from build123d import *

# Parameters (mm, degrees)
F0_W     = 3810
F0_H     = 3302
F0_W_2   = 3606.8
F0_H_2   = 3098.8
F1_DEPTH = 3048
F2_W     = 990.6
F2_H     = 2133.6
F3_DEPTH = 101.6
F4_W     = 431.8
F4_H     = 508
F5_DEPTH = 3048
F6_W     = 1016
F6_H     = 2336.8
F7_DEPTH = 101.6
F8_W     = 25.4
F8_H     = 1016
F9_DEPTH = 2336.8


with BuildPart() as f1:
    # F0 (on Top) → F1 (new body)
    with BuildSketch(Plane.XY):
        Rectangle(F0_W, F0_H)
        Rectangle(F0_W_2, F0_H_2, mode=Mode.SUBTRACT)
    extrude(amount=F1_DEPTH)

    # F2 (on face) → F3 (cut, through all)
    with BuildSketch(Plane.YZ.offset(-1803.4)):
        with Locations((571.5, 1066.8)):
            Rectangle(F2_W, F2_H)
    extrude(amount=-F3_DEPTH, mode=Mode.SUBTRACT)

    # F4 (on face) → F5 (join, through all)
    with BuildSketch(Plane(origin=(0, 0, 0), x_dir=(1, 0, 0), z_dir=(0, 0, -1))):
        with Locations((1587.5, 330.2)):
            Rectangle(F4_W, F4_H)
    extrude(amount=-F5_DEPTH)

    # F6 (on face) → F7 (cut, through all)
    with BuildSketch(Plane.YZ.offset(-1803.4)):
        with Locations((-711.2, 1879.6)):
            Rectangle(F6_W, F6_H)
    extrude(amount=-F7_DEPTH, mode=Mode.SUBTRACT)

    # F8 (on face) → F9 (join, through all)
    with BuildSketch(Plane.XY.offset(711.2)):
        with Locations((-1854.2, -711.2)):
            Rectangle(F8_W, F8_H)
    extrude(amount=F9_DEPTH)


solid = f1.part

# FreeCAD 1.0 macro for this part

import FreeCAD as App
import Part
import Sketcher
Q = App.Units.Quantity

doc = App.newDocument("Part")
body = doc.addObject("PartDesign::Body", "Body")

# Sketch on XY plane
sketch1 = body.newObject("Sketcher::SketchObject", "Sketch")
sketch1.AttachmentSupport = (doc.getObject("XY_Plane"), [""])
sketch1.MapMode = "FlatFace"
sketch1.addGeometry([
    Part.LineSegment(App.Vector(-1905, 1651, 0), App.Vector(-1905, -1651, 0)),  # 0
    Part.LineSegment(App.Vector(-1905, -1651, 0), App.Vector(1905, -1651, 0)),  # 1
    Part.LineSegment(App.Vector(1905, -1651, 0), App.Vector(1905, 1651, 0)),  # 2
    Part.LineSegment(App.Vector(1905, 1651, 0), App.Vector(-1905, 1651, 0)),  # 3
    Part.LineSegment(App.Vector(1803, -1549, 0), App.Vector(-1803, -1549, 0)),  # 4
    Part.LineSegment(App.Vector(-1803, -1549, 0), App.Vector(-1803, 1549, 0)),  # 5
    Part.LineSegment(App.Vector(-1803, 1549, 0), App.Vector(1803, 1549, 0)),  # 6
    Part.LineSegment(App.Vector(1803, 1549, 0), App.Vector(1803, -1549, 0)),  # 7
], False)
sketch1.addConstraint([
    Sketcher.Constraint("Coincident", 0, 2, 1, 1),
    Sketcher.Constraint("Coincident", 1, 2, 2, 1),
    Sketcher.Constraint("Coincident", 2, 2, 3, 1),
    Sketcher.Constraint("Coincident", 3, 2, 0, 1),
    Sketcher.Constraint("Coincident", 4, 2, 5, 1),
    Sketcher.Constraint("Coincident", 5, 2, 6, 1),
    Sketcher.Constraint("Coincident", 6, 2, 7, 1),
    Sketcher.Constraint("Coincident", 7, 2, 4, 1),
    Sketcher.Constraint("Vertical", 0),
    Sketcher.Constraint("Horizontal", 1),
    Sketcher.Constraint("Vertical", 2),
    Sketcher.Constraint("Horizontal", 3),
    Sketcher.Constraint("Horizontal", 4),
    Sketcher.Constraint("Vertical", 5),
    Sketcher.Constraint("Horizontal", 6),
    Sketcher.Constraint("Vertical", 7),
    Sketcher.Constraint("Symmetric", 0, 2, 2, 2, -1, 1),
    Sketcher.Constraint("Symmetric", 4, 2, 6, 2, -1, 1),
    Sketcher.Constraint("DistanceX", 1, 1, 1, 2, Q("150 in")),
    Sketcher.Constraint("DistanceX", 4, 2, 4, 1, Q("142 in")),
    Sketcher.Constraint("DistanceY", 0, 2, 0, 1, Q("130 in")),
    Sketcher.Constraint("DistanceY", 5, 1, 5, 2, Q("122 in")),
])
pad1 = body.newObject("PartDesign::Pad", "Pad")
pad1.Profile = sketch1
pad1.Length = Q("120 in")

# Sketch on YZ plane
sketch2 = body.newObject("Sketcher::SketchObject", "Sketch001")
sketch2.AttachmentSupport = (doc.getObject("YZ_Plane"), [""])
sketch2.MapMode = "FlatFace"
sketch2.AttachmentOffset = App.Placement(App.Vector(0, 0, -71 * 25.4), App.Rotation())
sketch2.addGeometry([
    Part.LineSegment(App.Vector(76, 2134, 0), App.Vector(76, 0, 0)),
    Part.LineSegment(App.Vector(76, 0, 0), App.Vector(1067, 0, 0)),
    Part.LineSegment(App.Vector(1067, 0, 0), App.Vector(1067, 2134, 0)),
    Part.LineSegment(App.Vector(1067, 2134, 0), App.Vector(76, 2134, 0)),
], False)
sketch2.addConstraint([
    Sketcher.Constraint("Coincident", 0, 2, 1, 1),
    Sketcher.Constraint("Coincident", 1, 2, 2, 1),
    Sketcher.Constraint("Coincident", 2, 2, 3, 1),
    Sketcher.Constraint("Coincident", 3, 2, 0, 1),
    Sketcher.Constraint("Vertical", 0),
    Sketcher.Constraint("Horizontal", 1),
    Sketcher.Constraint("Vertical", 2),
    Sketcher.Constraint("Horizontal", 3),
    Sketcher.Constraint("PointOnObject", 0, 2, -1),
    Sketcher.Constraint("DistanceX", 1, 1, 1, 2, Q("39 in")),
    Sketcher.Constraint("DistanceY", 0, 2, 0, 1, Q("84 in")),
    Sketcher.Constraint("DistanceX", -1, 1, 0, 2, Q("3 in")),
])
pocket1 = body.newObject("PartDesign::Pocket", "Pocket")
pocket1.Profile = sketch2
pocket1.Type = "ThroughAll"

# Sketch on XY plane
sketch3 = body.newObject("Sketcher::SketchObject", "Sketch002")
sketch3.AttachmentSupport = (doc.getObject("XY_Plane"), [""])
sketch3.MapMode = "FlatFace"
sketch3.addGeometry([
    Part.LineSegment(App.Vector(1372, -584, 0), App.Vector(1372, -76, 0)),
    Part.LineSegment(App.Vector(1372, -76, 0), App.Vector(1803, -76, 0)),
    Part.LineSegment(App.Vector(1803, -76, 0), App.Vector(1803, -584, 0)),
    Part.LineSegment(App.Vector(1803, -584, 0), App.Vector(1372, -584, 0)),
], False)
sketch3.addConstraint([
    Sketcher.Constraint("Coincident", 0, 2, 1, 1),
    Sketcher.Constraint("Coincident", 1, 2, 2, 1),
    Sketcher.Constraint("Coincident", 2, 2, 3, 1),
    Sketcher.Constraint("Coincident", 3, 2, 0, 1),
    Sketcher.Constraint("Vertical", 0),
    Sketcher.Constraint("Horizontal", 1),
    Sketcher.Constraint("Vertical", 2),
    Sketcher.Constraint("Horizontal", 3),
    Sketcher.Constraint("DistanceX", 1, 1, 1, 2, Q("17 in")),
    Sketcher.Constraint("DistanceY", 0, 1, 0, 2, Q("20 in")),
    Sketcher.Constraint("DistanceX", -1, 1, 0, 2, Q("54 in")),
    Sketcher.Constraint("DistanceY", 0, 2, -1, 1, Q("3 in")),
])
pad2 = body.newObject("PartDesign::Pad", "Pad001")
pad2.Profile = sketch3
pad2.Length = Q("120 in")

# Sketch on YZ plane
sketch4 = body.newObject("Sketcher::SketchObject", "Sketch003")
sketch4.AttachmentSupport = (doc.getObject("YZ_Plane"), [""])
sketch4.MapMode = "FlatFace"
sketch4.AttachmentOffset = App.Placement(App.Vector(0, 0, -71 * 25.4), App.Rotation())
sketch4.addGeometry([
    Part.LineSegment(App.Vector(-1219, 3048, 0), App.Vector(-1219, 711, 0)),
    Part.LineSegment(App.Vector(-1219, 711, 0), App.Vector(-203, 711, 0)),
    Part.LineSegment(App.Vector(-203, 711, 0), App.Vector(-203, 3048, 0)),
    Part.LineSegment(App.Vector(-203, 3048, 0), App.Vector(-1219, 3048, 0)),
], False)
sketch4.addConstraint([
    Sketcher.Constraint("Coincident", 0, 2, 1, 1),
    Sketcher.Constraint("Coincident", 1, 2, 2, 1),
    Sketcher.Constraint("Coincident", 2, 2, 3, 1),
    Sketcher.Constraint("Coincident", 3, 2, 0, 1),
    Sketcher.Constraint("Vertical", 0),
    Sketcher.Constraint("Horizontal", 1),
    Sketcher.Constraint("Vertical", 2),
    Sketcher.Constraint("Horizontal", 3),
    Sketcher.Constraint("DistanceX", 1, 1, 1, 2, Q("40 in")),
    Sketcher.Constraint("DistanceY", 0, 2, 0, 1, Q("92 in")),
    Sketcher.Constraint("DistanceX", 0, 2, -1, 1, Q("48 in")),
    Sketcher.Constraint("DistanceY", -1, 1, 0, 2, Q("28 in")),
])
pocket2 = body.newObject("PartDesign::Pocket", "Pocket001")
pocket2.Profile = sketch4
pocket2.Type = "ThroughAll"

# Sketch on XY plane
sketch5 = body.newObject("Sketcher::SketchObject", "Sketch004")
sketch5.AttachmentSupport = (doc.getObject("XY_Plane"), [""])
sketch5.MapMode = "FlatFace"
sketch5.AttachmentOffset = App.Placement(App.Vector(0, 0, 28 * 25.4), App.Rotation())
sketch5.addGeometry([
    Part.LineSegment(App.Vector(-1867, -203, 0), App.Vector(-1867, -1219, 0)),
    Part.LineSegment(App.Vector(-1867, -1219, 0), App.Vector(-1842, -1219, 0)),
    Part.LineSegment(App.Vector(-1842, -1219, 0), App.Vector(-1842, -203, 0)),
    Part.LineSegment(App.Vector(-1842, -203, 0), App.Vector(-1867, -203, 0)),
], False)
sketch5.addConstraint([
    Sketcher.Constraint("Coincident", 0, 2, 1, 1),
    Sketcher.Constraint("Coincident", 1, 2, 2, 1),
    Sketcher.Constraint("Coincident", 2, 2, 3, 1),
    Sketcher.Constraint("Coincident", 3, 2, 0, 1),
    Sketcher.Constraint("Vertical", 0),
    Sketcher.Constraint("Horizontal", 1),
    Sketcher.Constraint("Vertical", 2),
    Sketcher.Constraint("Horizontal", 3),
    Sketcher.Constraint("DistanceX", 1, 1, 1, 2, Q("1 in")),
    Sketcher.Constraint("DistanceY", 0, 2, 0, 1, Q("40 in")),
    Sketcher.Constraint("DistanceY", 0, 2, -1, 1, Q("48 in")),
    Sketcher.Constraint("DistanceX", 0, 2, -1, 1, Q("73.5 in")),
])
pad3 = body.newObject("PartDesign::Pad", "Pad002")
pad3.Profile = sketch5
pad3.Length = Q("92 in")

doc.recompute()
